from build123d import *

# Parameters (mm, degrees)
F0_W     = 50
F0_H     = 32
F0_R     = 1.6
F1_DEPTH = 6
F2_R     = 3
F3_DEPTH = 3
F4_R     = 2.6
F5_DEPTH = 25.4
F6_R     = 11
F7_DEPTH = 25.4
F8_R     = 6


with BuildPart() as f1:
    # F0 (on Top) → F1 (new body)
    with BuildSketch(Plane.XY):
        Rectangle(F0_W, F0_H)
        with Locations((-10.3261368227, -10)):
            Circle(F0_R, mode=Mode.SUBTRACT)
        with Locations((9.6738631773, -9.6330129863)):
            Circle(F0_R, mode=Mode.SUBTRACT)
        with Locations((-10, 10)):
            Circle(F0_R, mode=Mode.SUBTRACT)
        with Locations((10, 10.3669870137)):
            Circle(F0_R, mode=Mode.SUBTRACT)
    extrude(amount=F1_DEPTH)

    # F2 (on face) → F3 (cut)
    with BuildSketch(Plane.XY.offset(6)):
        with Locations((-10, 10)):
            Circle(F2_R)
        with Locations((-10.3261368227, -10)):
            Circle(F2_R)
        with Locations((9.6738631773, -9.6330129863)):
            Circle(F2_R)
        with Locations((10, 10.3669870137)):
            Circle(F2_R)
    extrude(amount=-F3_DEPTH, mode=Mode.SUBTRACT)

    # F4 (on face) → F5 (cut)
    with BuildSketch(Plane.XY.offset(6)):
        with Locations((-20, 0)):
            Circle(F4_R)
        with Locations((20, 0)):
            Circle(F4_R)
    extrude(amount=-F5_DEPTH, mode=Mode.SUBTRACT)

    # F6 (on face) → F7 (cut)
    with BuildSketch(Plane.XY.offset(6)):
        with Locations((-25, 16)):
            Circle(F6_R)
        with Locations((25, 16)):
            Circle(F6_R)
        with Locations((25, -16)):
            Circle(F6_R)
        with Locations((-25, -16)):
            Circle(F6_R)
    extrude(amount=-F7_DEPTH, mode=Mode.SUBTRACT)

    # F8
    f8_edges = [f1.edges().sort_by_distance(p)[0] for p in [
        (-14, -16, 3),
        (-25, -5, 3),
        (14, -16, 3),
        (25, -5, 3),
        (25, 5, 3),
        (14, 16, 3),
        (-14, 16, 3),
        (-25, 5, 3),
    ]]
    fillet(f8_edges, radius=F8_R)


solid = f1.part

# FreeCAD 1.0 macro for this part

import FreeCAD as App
import Part
import Sketcher

V = App.Vector
Q = App.Units.Quantity


def edges_at(feature, points):
    """Names of the edges that pass closest to the given points."""
    edges = feature.Shape.Edges
    near = lambda p: min(range(len(edges)), key=lambda i: edges[i].distToShape(Part.Vertex(*p))[0])
    return sorted({f"Edge{near(p) + 1}" for p in points})


def add_polygon(sketch, points):
    """Adds a closed chain of lines whose ends are joined by coincident constraints."""
    first, n = sketch.GeometryCount, len(points)
    for a, b in zip(points, points[1:] + points[:1]):
        sketch.addGeometry(Part.LineSegment(App.Vector(*a, 0), App.Vector(*b, 0)), False)
    for i in range(n):
        sketch.addConstraint(Sketcher.Constraint("Coincident", first + i, 2, first + (i + 1) % n, 1))

doc = App.newDocument("Part")
body = doc.addObject("PartDesign::Body", "Body")

# Sketch on XY plane
sketch1 = doc.addObject("Sketcher::SketchObject", "Sketch")
body.addObject(sketch1)
sketch1.AttachmentSupport = (doc.XY_Plane, [""])
sketch1.MapMode = "FlatFace"
add_polygon(sketch1, [(-25, 16), (-25, -16), (25, -16), (25, 16)])  # lines 0-3
sketch1.addGeometry(Part.Circle(V(-10.3, -10, 0), V(0, 0, 1), 1.6), False)  # 4
sketch1.addGeometry(Part.Circle(V(9.7, -9.6, 0), V(0, 0, 1), 1.6), False)  # 5
sketch1.addGeometry(Part.Circle(V(-10, 10, 0), V(0, 0, 1), 1.6), False)  # 6
sketch1.addGeometry(Part.Circle(V(10, 10.4, 0), V(0, 0, 1), 1.6), False)  # 7
sketch1.addConstraint([
    Sketcher.Constraint("Vertical", 0),
    Sketcher.Constraint("Horizontal", 1),
    Sketcher.Constraint("Vertical", 2),
    Sketcher.Constraint("Horizontal", 3),
    Sketcher.Constraint("Equal", 4, 5),
    Sketcher.Constraint("Equal", 5, 6),
    Sketcher.Constraint("Equal", 6, 7),
    Sketcher.Constraint("Symmetric", 0, 2, 2, 2, -1, 1),
    Sketcher.Constraint("Diameter", 4, Q("3.2 mm")),
    Sketcher.Constraint("DistanceX", 1, 1, 1, 2, Q("50 mm")),
    Sketcher.Constraint("DistanceY", 0, 2, 0, 1, Q("32 mm")),
    Sketcher.Constraint("DistanceY", 4, 3, -1, 1, Q("10 mm")),
    Sketcher.Constraint("DistanceX", 6, 3, -1, 1, Q("10 mm")),
    Sketcher.Constraint("DistanceY", -1, 1, 6, 3, Q("10 mm")),
    Sketcher.Constraint("DistanceX", -1, 1, 7, 3, Q("10 mm")),
    Sketcher.Constraint("DistanceX", 4, 3, 5, 3, Q("20 mm")),
    Sketcher.Constraint("DistanceY", 5, 3, 7, 3, Q("20 mm")),
    Sketcher.Constraint("DistanceX", 4, 3, -1, 1, Q("10.326137 mm")),
    Sketcher.Constraint("DistanceY", 5, 3, -1, 1, Q("9.633013 mm")),
])
pad1 = doc.addObject("PartDesign::Pad", "Pad")
body.addObject(pad1)
pad1.Profile = sketch1
pad1.Length = 6

# Sketch on XY plane
sketch2 = doc.addObject("Sketcher::SketchObject", "Sketch001")
body.addObject(sketch2)
sketch2.AttachmentSupport = (doc.XY_Plane, [""])
sketch2.MapMode = "FlatFace"
sketch2.AttachmentOffset = App.Placement(V(0, 0, 6), App.Rotation())
sketch2.addGeometry([
    Part.Circle(V(-10, 10, 0), V(0, 0, 1), 3),
    Part.Circle(V(-10.3, -10, 0), V(0, 0, 1), 3),
    Part.Circle(V(9.7, -9.6, 0), V(0, 0, 1), 3),
    Part.Circle(V(10, 10.4, 0), V(0, 0, 1), 3),
], False)
sketch2.addConstraint([
    Sketcher.Constraint("Equal", 0, 1),
    Sketcher.Constraint("Equal", 1, 2),
    Sketcher.Constraint("Equal", 2, 3),
    Sketcher.Constraint("Diameter", 0, Q("6 mm")),
    Sketcher.Constraint("DistanceX", 0, 3, -1, 1, Q("10 mm")),
    Sketcher.Constraint("DistanceY", -1, 1, 0, 3, Q("10 mm")),
    Sketcher.Constraint("DistanceY", 1, 3, -1, 1, Q("10 mm")),
    Sketcher.Constraint("DistanceX", -1, 1, 3, 3, Q("10 mm")),
    Sketcher.Constraint("DistanceX", 1, 3, 2, 3, Q("20 mm")),
    Sketcher.Constraint("DistanceY", 2, 3, 3, 3, Q("20 mm")),
    Sketcher.Constraint("DistanceX", 1, 3, -1, 1, Q("10.326137 mm")),
    Sketcher.Constraint("DistanceY", 2, 3, -1, 1, Q("9.633013 mm")),
])
pocket1 = doc.addObject("PartDesign::Pocket", "Pocket")
body.addObject(pocket1)
pocket1.Profile = sketch2
pocket1.Length = 3

# Sketch on XY plane
sketch3 = doc.addObject("Sketcher::SketchObject", "Sketch002")
body.addObject(sketch3)
sketch3.AttachmentSupport = (doc.XY_Plane, [""])
sketch3.MapMode = "FlatFace"
sketch3.AttachmentOffset = App.Placement(V(0, 0, 6), App.Rotation())
sketch3.addGeometry([
    Part.Circle(V(-20, 0, 0), V(0, 0, 1), 2.6),
    Part.Circle(V(20, 0, 0), V(0, 0, 1), 2.6),
], False)
sketch3.addConstraint([
    Sketcher.Constraint("Equal", 0, 1),
    Sketcher.Constraint("Symmetric", 0, 3, 1, 3, -1, 1),
    Sketcher.Constraint("PointOnObject", 0, 3, -1),
    Sketcher.Constraint("Diameter", 0, Q("5.2 mm")),
    Sketcher.Constraint("DistanceX", 0, 3, -1, 1, Q("20 mm")),
])
pocket2 = doc.addObject("PartDesign::Pocket", "Pocket001")
body.addObject(pocket2)
pocket2.Profile = sketch3
pocket2.Length = 25.4

# Sketch on XY plane
sketch4 = doc.addObject("Sketcher::SketchObject", "Sketch003")
body.addObject(sketch4)
sketch4.AttachmentSupport = (doc.XY_Plane, [""])
sketch4.MapMode = "FlatFace"
sketch4.AttachmentOffset = App.Placement(V(0, 0, 6), App.Rotation())
sketch4.addGeometry([
    Part.Circle(V(-25, 16, 0), V(0, 0, 1), 11),
    Part.Circle(V(25, 16, 0), V(0, 0, 1), 11),
    Part.Circle(V(25, -16, 0), V(0, 0, 1), 11),
    Part.Circle(V(-25, -16, 0), V(0, 0, 1), 11),
], False)
sketch4.addConstraint([
    Sketcher.Constraint("Equal", 0, 1),
    Sketcher.Constraint("Equal", 1, 2),
    Sketcher.Constraint("Equal", 2, 3),
    Sketcher.Constraint("Symmetric", 0, 3, 2, 3, -1, 1),
    Sketcher.Constraint("Symmetric", 1, 3, 3, 3, -1, 1),
    Sketcher.Constraint("Symmetric", 0, 3, 1, 3, -2),
    Sketcher.Constraint("Diameter", 0, Q("22 mm")),
    Sketcher.Constraint("DistanceX", 0, 3, -1, 1, Q("25 mm")),
    Sketcher.Constraint("DistanceY", -1, 1, 0, 3, Q("16 mm")),
])
pocket3 = doc.addObject("PartDesign::Pocket", "Pocket002")
body.addObject(pocket3)
pocket3.Profile = sketch4
pocket3.Length = 25.4
doc.recompute()

fillet = doc.addObject("PartDesign::Fillet", "Fillet")
body.addObject(fillet)
fillet.Base = (pocket3, edges_at(pocket3, [
    (-14, -16, 3),
    (-25, -5, 3),
    (14, -16, 3),
    (25, -5, 3),
    (25, 5, 3),
    (14, 16, 3),
    (-14, 16, 3),
    (-25, 5, 3),
]))
fillet.Radius = 6

doc.recompute()
